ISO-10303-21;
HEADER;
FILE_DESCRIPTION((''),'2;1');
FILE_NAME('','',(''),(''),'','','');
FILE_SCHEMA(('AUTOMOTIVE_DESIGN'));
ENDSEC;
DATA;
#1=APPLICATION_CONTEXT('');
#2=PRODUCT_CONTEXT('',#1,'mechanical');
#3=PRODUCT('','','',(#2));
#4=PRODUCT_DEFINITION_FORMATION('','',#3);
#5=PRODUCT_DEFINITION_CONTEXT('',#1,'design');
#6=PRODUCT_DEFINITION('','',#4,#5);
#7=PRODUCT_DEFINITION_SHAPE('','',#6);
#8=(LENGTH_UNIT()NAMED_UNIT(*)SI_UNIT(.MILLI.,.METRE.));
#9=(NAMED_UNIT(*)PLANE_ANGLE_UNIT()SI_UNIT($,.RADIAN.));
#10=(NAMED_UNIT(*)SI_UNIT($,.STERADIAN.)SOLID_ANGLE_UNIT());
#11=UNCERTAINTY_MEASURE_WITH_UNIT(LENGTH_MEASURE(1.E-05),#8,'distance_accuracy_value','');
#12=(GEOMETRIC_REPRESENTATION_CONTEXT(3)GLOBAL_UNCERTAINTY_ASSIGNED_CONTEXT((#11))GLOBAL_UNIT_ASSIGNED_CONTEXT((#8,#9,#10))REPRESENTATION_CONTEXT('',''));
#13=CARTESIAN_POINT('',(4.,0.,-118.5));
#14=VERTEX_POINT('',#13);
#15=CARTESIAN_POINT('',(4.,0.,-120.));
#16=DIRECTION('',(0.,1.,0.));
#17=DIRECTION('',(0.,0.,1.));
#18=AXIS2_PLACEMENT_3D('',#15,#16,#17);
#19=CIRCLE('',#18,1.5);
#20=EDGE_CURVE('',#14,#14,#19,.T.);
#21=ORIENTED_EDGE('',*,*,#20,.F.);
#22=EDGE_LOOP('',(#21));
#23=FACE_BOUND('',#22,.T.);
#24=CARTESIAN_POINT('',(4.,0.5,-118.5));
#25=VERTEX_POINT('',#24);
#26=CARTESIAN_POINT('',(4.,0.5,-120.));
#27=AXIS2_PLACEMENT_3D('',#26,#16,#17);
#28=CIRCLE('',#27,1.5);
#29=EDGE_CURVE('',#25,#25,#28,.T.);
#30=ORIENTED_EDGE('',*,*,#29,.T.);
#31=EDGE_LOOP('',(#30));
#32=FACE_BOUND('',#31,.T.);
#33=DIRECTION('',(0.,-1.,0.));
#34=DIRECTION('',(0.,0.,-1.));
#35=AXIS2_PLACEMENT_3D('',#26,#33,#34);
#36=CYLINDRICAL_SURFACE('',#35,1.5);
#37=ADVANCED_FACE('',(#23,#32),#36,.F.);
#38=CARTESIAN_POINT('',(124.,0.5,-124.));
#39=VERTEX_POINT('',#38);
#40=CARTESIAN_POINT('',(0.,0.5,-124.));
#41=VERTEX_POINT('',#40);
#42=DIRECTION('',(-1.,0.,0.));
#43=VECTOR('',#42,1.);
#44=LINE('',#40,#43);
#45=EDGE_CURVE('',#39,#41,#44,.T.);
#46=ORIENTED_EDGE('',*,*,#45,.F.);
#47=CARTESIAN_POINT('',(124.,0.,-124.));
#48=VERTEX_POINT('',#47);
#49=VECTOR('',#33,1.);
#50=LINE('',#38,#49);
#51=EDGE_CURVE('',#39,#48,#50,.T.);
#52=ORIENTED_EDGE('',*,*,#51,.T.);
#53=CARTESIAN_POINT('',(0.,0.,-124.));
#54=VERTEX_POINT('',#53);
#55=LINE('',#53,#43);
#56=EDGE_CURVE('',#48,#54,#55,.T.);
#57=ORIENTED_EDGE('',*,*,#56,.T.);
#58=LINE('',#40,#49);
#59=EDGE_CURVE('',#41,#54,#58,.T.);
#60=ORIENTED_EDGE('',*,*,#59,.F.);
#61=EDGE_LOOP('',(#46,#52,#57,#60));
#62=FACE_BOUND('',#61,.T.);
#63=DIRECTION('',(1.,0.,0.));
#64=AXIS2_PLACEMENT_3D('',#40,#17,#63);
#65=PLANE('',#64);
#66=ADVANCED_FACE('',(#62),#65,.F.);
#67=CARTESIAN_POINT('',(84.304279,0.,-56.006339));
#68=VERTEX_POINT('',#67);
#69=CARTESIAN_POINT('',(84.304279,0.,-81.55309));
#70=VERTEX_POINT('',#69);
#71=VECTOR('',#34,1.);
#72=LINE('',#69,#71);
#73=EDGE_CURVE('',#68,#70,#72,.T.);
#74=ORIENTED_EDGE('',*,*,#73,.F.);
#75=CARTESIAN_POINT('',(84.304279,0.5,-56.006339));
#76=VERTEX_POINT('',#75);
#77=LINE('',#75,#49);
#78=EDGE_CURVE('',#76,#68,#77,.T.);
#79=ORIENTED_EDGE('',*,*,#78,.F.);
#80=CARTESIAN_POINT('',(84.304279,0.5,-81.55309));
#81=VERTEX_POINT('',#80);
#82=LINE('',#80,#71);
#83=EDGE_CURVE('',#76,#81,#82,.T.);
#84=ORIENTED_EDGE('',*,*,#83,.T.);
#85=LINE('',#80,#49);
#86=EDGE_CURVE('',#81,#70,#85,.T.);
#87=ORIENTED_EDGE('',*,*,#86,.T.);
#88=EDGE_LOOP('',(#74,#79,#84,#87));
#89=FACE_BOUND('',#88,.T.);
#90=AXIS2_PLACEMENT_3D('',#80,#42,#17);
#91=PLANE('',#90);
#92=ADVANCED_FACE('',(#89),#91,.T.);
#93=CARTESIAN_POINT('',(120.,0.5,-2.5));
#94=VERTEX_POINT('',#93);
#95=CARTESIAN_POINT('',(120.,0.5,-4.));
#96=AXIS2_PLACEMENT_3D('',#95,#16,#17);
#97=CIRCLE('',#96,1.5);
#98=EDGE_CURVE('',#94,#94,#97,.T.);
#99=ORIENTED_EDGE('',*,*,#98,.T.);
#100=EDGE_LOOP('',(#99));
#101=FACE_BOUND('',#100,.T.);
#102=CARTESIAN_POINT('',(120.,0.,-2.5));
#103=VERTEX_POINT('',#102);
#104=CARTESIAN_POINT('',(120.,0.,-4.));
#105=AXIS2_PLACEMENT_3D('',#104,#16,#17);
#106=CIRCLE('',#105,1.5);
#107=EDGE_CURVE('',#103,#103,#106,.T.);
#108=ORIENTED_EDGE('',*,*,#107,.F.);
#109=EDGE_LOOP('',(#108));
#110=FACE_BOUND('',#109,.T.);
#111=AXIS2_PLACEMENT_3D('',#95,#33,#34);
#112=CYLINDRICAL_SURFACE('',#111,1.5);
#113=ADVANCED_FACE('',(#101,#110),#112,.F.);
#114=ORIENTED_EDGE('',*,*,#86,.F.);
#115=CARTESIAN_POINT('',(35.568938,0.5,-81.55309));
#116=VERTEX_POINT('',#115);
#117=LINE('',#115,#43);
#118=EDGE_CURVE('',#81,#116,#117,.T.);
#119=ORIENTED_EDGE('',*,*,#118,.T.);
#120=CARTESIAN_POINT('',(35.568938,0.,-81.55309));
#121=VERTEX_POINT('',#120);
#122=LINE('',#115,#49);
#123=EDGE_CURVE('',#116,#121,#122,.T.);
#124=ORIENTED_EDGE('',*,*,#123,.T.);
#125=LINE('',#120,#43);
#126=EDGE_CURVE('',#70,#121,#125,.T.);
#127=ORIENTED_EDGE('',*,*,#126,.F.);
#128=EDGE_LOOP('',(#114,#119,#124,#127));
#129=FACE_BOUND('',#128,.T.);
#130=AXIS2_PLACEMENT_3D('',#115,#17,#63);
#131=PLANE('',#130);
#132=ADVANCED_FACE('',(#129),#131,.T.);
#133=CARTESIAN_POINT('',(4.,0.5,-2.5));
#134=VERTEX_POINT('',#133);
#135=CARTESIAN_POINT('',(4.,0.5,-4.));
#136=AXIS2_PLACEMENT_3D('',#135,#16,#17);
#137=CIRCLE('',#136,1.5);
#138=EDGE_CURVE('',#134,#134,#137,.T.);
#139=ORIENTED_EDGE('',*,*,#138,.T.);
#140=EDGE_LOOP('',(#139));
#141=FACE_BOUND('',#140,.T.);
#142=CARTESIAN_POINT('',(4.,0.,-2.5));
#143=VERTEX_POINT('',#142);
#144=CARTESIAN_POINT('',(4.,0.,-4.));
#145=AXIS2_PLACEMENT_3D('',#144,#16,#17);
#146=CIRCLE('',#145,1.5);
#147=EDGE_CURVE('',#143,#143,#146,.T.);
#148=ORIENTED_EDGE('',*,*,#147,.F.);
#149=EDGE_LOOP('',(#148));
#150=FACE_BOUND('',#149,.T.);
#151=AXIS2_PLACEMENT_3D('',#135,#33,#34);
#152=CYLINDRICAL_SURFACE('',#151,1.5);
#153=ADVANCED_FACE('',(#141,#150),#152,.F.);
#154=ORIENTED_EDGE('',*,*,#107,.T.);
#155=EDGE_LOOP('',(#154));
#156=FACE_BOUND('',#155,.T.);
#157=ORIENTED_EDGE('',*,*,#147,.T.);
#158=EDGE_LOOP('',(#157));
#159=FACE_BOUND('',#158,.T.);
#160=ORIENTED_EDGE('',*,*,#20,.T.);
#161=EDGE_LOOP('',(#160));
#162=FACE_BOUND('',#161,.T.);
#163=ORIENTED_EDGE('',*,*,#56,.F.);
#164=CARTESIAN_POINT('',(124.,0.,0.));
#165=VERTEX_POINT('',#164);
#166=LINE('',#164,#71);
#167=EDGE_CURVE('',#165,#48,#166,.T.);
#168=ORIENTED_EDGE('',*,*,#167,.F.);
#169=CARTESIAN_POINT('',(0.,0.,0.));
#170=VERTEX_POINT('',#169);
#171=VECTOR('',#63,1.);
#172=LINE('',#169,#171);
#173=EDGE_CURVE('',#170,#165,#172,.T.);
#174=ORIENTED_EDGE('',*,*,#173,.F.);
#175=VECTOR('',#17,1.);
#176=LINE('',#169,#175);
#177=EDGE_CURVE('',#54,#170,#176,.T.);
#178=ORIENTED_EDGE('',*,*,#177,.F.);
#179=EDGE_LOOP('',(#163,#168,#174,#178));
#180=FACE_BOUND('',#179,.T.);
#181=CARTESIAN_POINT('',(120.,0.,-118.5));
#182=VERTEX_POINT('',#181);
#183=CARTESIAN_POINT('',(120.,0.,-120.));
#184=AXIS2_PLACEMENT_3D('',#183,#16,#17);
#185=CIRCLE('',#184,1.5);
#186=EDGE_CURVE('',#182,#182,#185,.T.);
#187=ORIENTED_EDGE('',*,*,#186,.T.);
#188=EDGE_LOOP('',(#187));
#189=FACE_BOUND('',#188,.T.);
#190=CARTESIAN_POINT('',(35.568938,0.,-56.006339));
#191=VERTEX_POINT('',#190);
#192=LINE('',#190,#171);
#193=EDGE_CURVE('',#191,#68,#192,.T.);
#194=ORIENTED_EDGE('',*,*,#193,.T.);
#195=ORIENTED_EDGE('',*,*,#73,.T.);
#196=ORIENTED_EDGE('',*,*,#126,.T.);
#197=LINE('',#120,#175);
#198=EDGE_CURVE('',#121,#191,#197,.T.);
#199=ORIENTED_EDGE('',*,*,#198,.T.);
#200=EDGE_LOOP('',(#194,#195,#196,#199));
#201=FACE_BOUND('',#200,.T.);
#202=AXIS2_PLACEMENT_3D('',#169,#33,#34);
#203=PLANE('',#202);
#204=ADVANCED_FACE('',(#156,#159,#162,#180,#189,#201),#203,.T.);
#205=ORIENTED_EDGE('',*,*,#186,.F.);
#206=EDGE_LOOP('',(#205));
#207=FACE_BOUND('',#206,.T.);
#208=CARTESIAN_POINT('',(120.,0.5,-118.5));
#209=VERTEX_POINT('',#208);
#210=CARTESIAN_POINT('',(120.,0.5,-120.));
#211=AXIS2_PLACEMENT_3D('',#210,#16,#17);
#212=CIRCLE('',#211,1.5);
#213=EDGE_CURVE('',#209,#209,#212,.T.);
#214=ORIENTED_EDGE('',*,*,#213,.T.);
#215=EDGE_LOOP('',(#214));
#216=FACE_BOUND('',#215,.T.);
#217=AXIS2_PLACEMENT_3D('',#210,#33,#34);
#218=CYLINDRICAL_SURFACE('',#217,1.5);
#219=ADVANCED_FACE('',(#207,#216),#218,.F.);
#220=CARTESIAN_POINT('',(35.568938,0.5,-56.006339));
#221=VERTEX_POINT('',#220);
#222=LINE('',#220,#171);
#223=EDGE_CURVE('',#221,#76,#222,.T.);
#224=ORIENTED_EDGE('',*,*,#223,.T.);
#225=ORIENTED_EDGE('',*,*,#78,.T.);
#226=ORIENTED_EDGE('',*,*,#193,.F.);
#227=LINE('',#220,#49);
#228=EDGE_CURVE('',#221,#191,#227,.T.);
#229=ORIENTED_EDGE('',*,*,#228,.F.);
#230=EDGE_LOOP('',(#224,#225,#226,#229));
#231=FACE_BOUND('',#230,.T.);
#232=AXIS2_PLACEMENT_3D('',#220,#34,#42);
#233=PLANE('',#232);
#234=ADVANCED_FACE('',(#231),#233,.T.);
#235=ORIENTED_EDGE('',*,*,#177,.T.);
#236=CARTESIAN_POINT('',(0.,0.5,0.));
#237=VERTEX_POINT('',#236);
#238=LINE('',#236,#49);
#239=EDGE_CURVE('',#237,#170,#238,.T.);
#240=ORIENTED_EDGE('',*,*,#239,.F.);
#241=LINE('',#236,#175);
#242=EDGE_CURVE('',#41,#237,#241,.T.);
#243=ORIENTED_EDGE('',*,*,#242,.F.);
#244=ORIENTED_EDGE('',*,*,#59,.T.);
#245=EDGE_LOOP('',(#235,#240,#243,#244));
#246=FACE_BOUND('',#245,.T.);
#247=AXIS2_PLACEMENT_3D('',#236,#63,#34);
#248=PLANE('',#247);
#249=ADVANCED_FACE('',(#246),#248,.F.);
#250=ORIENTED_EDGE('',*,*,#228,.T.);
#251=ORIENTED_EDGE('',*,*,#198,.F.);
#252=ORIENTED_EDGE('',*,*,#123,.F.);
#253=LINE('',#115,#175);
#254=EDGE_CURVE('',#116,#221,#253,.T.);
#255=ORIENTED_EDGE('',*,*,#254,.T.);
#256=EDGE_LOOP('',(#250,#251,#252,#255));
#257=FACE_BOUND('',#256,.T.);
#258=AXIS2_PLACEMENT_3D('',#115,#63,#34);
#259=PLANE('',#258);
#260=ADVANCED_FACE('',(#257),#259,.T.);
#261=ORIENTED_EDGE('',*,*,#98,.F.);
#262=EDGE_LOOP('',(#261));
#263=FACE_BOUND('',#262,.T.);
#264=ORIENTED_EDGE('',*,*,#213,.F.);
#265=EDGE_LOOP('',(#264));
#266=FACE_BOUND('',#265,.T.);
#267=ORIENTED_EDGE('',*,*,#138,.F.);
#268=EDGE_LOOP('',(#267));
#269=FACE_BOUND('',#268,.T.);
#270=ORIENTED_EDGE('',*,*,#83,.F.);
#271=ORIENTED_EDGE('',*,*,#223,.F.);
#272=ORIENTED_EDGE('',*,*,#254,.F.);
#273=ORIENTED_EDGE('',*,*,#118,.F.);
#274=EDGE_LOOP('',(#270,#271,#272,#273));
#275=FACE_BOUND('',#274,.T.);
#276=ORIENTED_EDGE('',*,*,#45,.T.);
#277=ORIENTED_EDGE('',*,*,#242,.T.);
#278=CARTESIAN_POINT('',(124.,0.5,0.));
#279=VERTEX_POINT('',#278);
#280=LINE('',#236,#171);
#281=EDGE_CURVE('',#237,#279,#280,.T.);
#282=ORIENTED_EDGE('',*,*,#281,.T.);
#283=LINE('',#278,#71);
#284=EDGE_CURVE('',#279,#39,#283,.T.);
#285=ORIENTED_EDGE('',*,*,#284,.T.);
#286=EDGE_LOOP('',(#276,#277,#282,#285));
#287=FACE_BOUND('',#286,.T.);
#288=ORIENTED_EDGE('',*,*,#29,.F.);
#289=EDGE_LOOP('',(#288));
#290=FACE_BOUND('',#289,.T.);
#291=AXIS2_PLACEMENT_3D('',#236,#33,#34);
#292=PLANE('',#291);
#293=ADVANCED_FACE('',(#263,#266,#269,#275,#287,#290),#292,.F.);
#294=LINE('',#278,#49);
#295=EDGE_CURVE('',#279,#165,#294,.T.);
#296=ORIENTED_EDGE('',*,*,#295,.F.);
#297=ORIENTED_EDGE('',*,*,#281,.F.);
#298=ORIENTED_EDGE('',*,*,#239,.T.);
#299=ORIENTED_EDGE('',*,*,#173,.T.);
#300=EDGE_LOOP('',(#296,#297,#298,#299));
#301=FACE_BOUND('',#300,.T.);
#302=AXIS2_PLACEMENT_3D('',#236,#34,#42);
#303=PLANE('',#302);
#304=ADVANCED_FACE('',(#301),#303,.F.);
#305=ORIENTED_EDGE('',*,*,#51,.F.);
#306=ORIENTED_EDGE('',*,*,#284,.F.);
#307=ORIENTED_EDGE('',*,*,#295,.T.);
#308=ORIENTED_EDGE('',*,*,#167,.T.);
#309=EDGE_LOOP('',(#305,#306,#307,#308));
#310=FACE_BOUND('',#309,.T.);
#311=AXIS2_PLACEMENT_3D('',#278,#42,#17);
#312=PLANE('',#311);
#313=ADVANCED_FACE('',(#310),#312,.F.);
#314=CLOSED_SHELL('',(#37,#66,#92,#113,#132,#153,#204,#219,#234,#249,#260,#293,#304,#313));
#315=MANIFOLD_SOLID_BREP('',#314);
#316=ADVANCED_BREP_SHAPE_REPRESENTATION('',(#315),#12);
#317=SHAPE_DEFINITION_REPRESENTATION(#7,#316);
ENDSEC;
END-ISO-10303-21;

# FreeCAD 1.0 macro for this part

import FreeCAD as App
import Part
import Sketcher
from FreeCAD import Vector
Q = App.Units.Quantity

doc = App.newDocument("Part")
params = doc.addObject("Spreadsheet::Sheet", "Params")
for row, (alias, value) in enumerate([
    ("sketch1_diameter", "3 mm"),
    ("sketch1_width", "124 mm"),
    ("pad1_length", "0.5 mm"),
], start=1):
    params.set(f"A{row}", alias)
    params.set(f"B{row}", "=" + value)
    params.setAlias(f"B{row}", alias)

body = doc.addObject("PartDesign::Body", "Body")

sketch1 = body.newObject("Sketcher::SketchObject", "Sketch")
sketch1.AttachmentSupport = (doc.getObject("XZ_Plane"), [""])
sketch1.MapMode = "FlatFace"
sketch1.addGeometry([
    Part.LineSegment(Vector(0, -124, 0), Vector(0, 0, 0)),
    Part.LineSegment(Vector(0, 0, 0), Vector(124, 0, 0)),
    Part.LineSegment(Vector(124, 0, 0), Vector(124, -124, 0)),
    Part.LineSegment(Vector(124, -124, 0), Vector(0, -124, 0)),
    Part.Circle(Vector(4, -4, 0), Vector(0, 0, 1), 1.5),
    Part.Circle(Vector(120, -4, 0), Vector(0, 0, 1), 1.5),
    Part.LineSegment(Vector(84.3, -56, 0), Vector(35.6, -56, 0)),
    Part.LineSegment(Vector(35.6, -56, 0), Vector(35.6, -81.6, 0)),
    Part.LineSegment(Vector(35.6, -81.6, 0), Vector(84.3, -81.6, 0)),
    Part.LineSegment(Vector(84.3, -81.6, 0), Vector(84.3, -56, 0)),
    Part.Circle(Vector(4, -120, 0), Vector(0, 0, 1), 1.5),
    Part.Circle(Vector(120, -120, 0), Vector(0, 0, 1), 1.5),
], False)
sketch1.addConstraint([
    Sketcher.Constraint("Coincident", 0, 2, 1, 1),
    Sketcher.Constraint("Coincident", 1, 2, 2, 1),
    Sketcher.Constraint("Coincident", 2, 2, 3, 1),
    Sketcher.Constraint("Coincident", 3, 2, 0, 1),
    Sketcher.Constraint("Coincident", 6, 2, 7, 1),
    Sketcher.Constraint("Coincident", 7, 2, 8, 1),
    Sketcher.Constraint("Coincident", 8, 2, 9, 1),
    Sketcher.Constraint("Coincident", 9, 2, 6, 1),
    Sketcher.Constraint("Vertical", 0),
    Sketcher.Constraint("Horizontal", 1),
    Sketcher.Constraint("Vertical", 2),
    Sketcher.Constraint("Horizontal", 3),
    Sketcher.Constraint("Horizontal", 6),
    Sketcher.Constraint("Vertical", 7),
    Sketcher.Constraint("Horizontal", 8),
    Sketcher.Constraint("Vertical", 9),
    Sketcher.Constraint("Coincident", 0, 2, -1, 1),
    Sketcher.Constraint("Equal", 4, 5),
    Sketcher.Constraint("Equal", 5, 10),
    Sketcher.Constraint("Equal", 10, 11),
    Sketcher.Constraint("Horizontal", 4, 3, 5, 3),
    Sketcher.Constraint("Horizontal", 10, 3, 11, 3),
    Sketcher.Constraint("Vertical", 4, 3, 10, 3),
    Sketcher.Constraint("Vertical", 5, 3, 11, 3),
    Sketcher.Constraint("Equal", 3, 0),
    Sketcher.Constraint("Diameter", 4, Q("3 mm")),
    Sketcher.Constraint("DistanceX", 1, 1, 1, 2, Q("124 mm")),
    Sketcher.Constraint("DistanceX", -1, 1, 4, 3, Q("4 mm")),
    Sketcher.Constraint("DistanceY", 4, 3, -1, 1, Q("4 mm")),
    Sketcher.Constraint("DistanceX", -1, 1, 5, 3, Q("120 mm")),
    Sketcher.Constraint("DistanceY", 10, 3, -1, 1, Q("120 mm")),
    Sketcher.Constraint("DistanceX", 6, 2, 6, 1, Q("48.735341 mm")),
    Sketcher.Constraint("DistanceY", 7, 2, 7, 1, Q("25.546751 mm")),
    Sketcher.Constraint("DistanceX", -1, 1, 6, 2, Q("35.568938 mm")),
    Sketcher.Constraint("DistanceY", 6, 2, -1, 1, Q("56.006339 mm")),
])
sketch1.setExpression("Constraints[25]", "Params.sketch1_diameter")
sketch1.setExpression("Constraints[26]", "Params.sketch1_width")
pad1 = body.newObject("PartDesign::Pad", "Pad")
pad1.Profile = sketch1
pad1.setExpression("Length", "Params.pad1_length")
pad1.Reversed = True

doc.recompute()
